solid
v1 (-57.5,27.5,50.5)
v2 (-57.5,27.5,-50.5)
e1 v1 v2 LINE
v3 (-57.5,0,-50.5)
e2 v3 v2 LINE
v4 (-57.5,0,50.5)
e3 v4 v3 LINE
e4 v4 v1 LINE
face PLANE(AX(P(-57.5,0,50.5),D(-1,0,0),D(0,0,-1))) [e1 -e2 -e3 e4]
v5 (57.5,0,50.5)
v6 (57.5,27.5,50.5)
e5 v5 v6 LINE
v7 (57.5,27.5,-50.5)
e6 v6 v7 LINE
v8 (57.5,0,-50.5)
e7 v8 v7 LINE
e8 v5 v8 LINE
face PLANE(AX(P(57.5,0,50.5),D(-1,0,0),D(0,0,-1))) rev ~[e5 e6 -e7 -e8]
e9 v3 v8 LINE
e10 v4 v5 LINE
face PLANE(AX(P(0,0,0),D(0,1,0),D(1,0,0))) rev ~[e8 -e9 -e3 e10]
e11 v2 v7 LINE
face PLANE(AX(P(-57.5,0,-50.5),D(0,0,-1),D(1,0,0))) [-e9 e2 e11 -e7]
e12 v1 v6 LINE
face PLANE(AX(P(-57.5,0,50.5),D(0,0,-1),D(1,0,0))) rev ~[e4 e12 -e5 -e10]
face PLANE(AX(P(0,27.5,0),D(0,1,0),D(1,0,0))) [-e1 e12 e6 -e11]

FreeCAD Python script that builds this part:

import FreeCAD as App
import Part
import Sketcher
from FreeCAD import Vector

doc = App.newDocument("Part")
body = doc.addObject("PartDesign::Body", "Body")

# Sketch on XZ plane
sketch1 = body.newObject("Sketcher::SketchObject", "Sketch")
sketch1.AttachmentSupport = (doc.getObject("XZ_Plane"), [""])
sketch1.MapMode = "FlatFace"
sketch1.addGeometry(Part.LineSegment(Vector(-58, -50, 0), Vector(-58, 50, 0)), False)
sketch1.addGeometry(Part.LineSegment(Vector(-58, 50, 0), Vector(58, 50, 0)), False)
sketch1.addGeometry(Part.LineSegment(Vector(58, 50, 0), Vector(58, -50, 0)), False)
sketch1.addGeometry(Part.LineSegment(Vector(58, -50, 0), Vector(-58, -50, 0)), False)
sketch1.addConstraint(Sketcher.Constraint("Coincident", 0, 2, 1, 1))
sketch1.addConstraint(Sketcher.Constraint("Coincident", 1, 2, 2, 1))
sketch1.addConstraint(Sketcher.Constraint("Coincident", 2, 2, 3, 1))
sketch1.addConstraint(Sketcher.Constraint("Coincident", 3, 2, 0, 1))
sketch1.addConstraint(Sketcher.Constraint("Vertical", 0))
sketch1.addConstraint(Sketcher.Constraint("Horizontal", 1))
sketch1.addConstraint(Sketcher.Constraint("Vertical", 2))
sketch1.addConstraint(Sketcher.Constraint("Horizontal", 3))
sketch1.addConstraint(Sketcher.Constraint("Symmetric", 0, 2, 2, 2, -1, 1))
sketch1.addConstraint(Sketcher.Constraint("DistanceX", 1, 1, 1, 2, 115.0))
sketch1.addConstraint(Sketcher.Constraint("DistanceY", 0, 1, 0, 2, 101.0))
pad1 = body.newObject("PartDesign::Pad", "Pad")
pad1.Profile = sketch1
pad1.Length = 27.5
pad1.Reversed = True

doc.recompute()
